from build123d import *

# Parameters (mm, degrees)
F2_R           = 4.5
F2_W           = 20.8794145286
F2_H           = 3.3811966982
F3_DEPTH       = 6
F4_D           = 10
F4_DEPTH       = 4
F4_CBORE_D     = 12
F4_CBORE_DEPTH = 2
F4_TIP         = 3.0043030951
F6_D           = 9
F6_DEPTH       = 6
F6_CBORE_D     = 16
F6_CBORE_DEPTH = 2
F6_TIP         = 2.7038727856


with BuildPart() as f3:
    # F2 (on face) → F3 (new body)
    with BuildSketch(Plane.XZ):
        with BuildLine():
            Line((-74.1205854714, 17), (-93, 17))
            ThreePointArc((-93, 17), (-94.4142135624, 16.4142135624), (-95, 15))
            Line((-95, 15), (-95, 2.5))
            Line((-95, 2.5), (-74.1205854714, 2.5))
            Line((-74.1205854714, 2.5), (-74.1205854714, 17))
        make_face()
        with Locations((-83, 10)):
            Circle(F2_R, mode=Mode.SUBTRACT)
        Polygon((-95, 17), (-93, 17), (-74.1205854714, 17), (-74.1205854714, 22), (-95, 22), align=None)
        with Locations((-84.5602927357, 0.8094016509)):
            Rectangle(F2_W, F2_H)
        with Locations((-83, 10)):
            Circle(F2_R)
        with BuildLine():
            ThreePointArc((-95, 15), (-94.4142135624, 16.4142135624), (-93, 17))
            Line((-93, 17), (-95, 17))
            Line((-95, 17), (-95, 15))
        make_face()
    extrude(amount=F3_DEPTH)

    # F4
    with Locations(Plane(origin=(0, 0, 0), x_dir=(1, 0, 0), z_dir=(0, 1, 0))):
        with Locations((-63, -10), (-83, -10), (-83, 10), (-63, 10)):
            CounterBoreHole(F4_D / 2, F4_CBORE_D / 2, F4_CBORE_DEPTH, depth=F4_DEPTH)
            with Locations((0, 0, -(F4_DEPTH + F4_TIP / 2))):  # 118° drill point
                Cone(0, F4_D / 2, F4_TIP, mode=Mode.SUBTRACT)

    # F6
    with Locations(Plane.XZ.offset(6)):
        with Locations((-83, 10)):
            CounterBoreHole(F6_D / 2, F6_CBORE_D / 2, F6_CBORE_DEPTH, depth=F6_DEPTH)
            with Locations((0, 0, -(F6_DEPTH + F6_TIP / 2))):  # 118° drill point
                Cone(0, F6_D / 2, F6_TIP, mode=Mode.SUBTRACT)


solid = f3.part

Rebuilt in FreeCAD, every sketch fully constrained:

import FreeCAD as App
import Part
import Sketcher
from FreeCAD import Vector


def add_polygon(sketch, points):
    """Adds a closed chain of lines whose ends are joined by coincident constraints."""
    first, n = sketch.GeometryCount, len(points)
    for a, b in zip(points, points[1:] + points[:1]):
        sketch.addGeometry(Part.LineSegment(App.Vector(*a, 0), App.Vector(*b, 0)), False)
    for i in range(n):
        sketch.addConstraint(Sketcher.Constraint("Coincident", first + i, 2, first + (i + 1) % n, 1))

doc = App.newDocument("Part")
body = doc.addObject("PartDesign::Body", "Body")

# Sketch on XZ plane
sketch1 = doc.addObject("Sketcher::SketchObject", "Sketch")
body.addObject(sketch1)
sketch1.AttachmentSupport = (doc.XZ_Plane, [""])
sketch1.MapMode = "FlatFace"
add_polygon(sketch1, [(-74.120585, 22), (-95, 22), (-95, -0.881197), (-74.120585, -0.881197)])  # lines 0-3
sketch1.addConstraint([
    Sketcher.Constraint("Horizontal", 0),
    Sketcher.Constraint("Vertical", 1),
    Sketcher.Constraint("Horizontal", 2),
    Sketcher.Constraint("Vertical", 3),
    Sketcher.Constraint("DistanceX", 0, 2, -1, 1, 95.0),
    Sketcher.Constraint("DistanceY", -1, 1, 0, 2, 22.0),
    Sketcher.Constraint("DistanceX", 0, 2, 0, 1, 20.879415),
    Sketcher.Constraint("DistanceY", 1, 2, 1, 1, 22.881197),
])
pad1 = doc.addObject("PartDesign::Pad", "Pad")
body.addObject(pad1)
pad1.Profile = sketch1
pad1.Length = 6

# Sketch on XZ plane
sketch2 = doc.addObject("Sketcher::SketchObject", "Sketch001")
body.addObject(sketch2)
sketch2.AttachmentSupport = (doc.XZ_Plane, [""])
sketch2.MapMode = "FlatFace"
sketch2.addGeometry([
    Part.Circle(Vector(-63, 10, 0), Vector(0, 0, 1), 5),
    Part.Circle(Vector(-83, 10, 0), Vector(0, 0, 1), 5),
    Part.Circle(Vector(-83, -10, 0), Vector(0, 0, 1), 5),
    Part.Circle(Vector(-63, -10, 0), Vector(0, 0, 1), 5),
], False)
sketch2.addConstraint([
    Sketcher.Constraint("Equal", 0, 1),
    Sketcher.Constraint("Equal", 1, 2),
    Sketcher.Constraint("Equal", 2, 3),
    Sketcher.Constraint("Symmetric", 1, 3, 2, 3, -1),
    Sketcher.Constraint("Symmetric", 0, 3, 3, 3, -1),
    Sketcher.Constraint("Horizontal", 0, 3, 1, 3),
    Sketcher.Constraint("Diameter", 0, 10.0),
    Sketcher.Constraint("DistanceX", 0, 3, -1, 1, 63.0),
    Sketcher.Constraint("DistanceY", -1, 1, 0, 3, 10.0),
    Sketcher.Constraint("DistanceX", 1, 3, -1, 1, 83.0),
])
doc.recompute()
hole = doc.addObject("PartDesign::Hole", "Hole")
body.addObject(hole)
hole.Profile = sketch2
hole.ThreadType = "None"
hole.Diameter = 10
hole.DepthType = "Dimension"
hole.Depth = 4
hole.DrillPoint = "Angled"
hole.DrillPointAngle = 118
hole.HoleCutType = "Counterbore"
hole.HoleCutDiameter = 12
hole.HoleCutDepth = 2
hole.Reversed = True

# Sketch on XZ plane
sketch3 = doc.addObject("Sketcher::SketchObject", "Sketch002")
body.addObject(sketch3)
sketch3.AttachmentSupport = (doc.XZ_Plane, [""])
sketch3.MapMode = "FlatFace"
sketch3.AttachmentOffset = App.Placement(Vector(0, 0, 6), App.Rotation())
sketch3.addGeometry(Part.Circle(Vector(-83, 10, 0), Vector(0, 0, 1), 4.5), False)
sketch3.addConstraint([
    Sketcher.Constraint("Diameter", 0, 9.0),
    Sketcher.Constraint("DistanceX", 0, 3, -1, 1, 83.0),
    Sketcher.Constraint("DistanceY", -1, 1, 0, 3, 10.0),
])
doc.recompute()
hole2 = doc.addObject("PartDesign::Hole", "Hole001")
body.addObject(hole2)
hole2.Profile = sketch3
hole2.ThreadType = "None"
hole2.Diameter = 9
hole2.DepthType = "Dimension"
hole2.Depth = 6
hole2.DrillPoint = "Angled"
hole2.DrillPointAngle = 118
hole2.HoleCutType = "Counterbore"
hole2.HoleCutDiameter = 16
hole2.HoleCutDepth = 2

doc.recompute()
